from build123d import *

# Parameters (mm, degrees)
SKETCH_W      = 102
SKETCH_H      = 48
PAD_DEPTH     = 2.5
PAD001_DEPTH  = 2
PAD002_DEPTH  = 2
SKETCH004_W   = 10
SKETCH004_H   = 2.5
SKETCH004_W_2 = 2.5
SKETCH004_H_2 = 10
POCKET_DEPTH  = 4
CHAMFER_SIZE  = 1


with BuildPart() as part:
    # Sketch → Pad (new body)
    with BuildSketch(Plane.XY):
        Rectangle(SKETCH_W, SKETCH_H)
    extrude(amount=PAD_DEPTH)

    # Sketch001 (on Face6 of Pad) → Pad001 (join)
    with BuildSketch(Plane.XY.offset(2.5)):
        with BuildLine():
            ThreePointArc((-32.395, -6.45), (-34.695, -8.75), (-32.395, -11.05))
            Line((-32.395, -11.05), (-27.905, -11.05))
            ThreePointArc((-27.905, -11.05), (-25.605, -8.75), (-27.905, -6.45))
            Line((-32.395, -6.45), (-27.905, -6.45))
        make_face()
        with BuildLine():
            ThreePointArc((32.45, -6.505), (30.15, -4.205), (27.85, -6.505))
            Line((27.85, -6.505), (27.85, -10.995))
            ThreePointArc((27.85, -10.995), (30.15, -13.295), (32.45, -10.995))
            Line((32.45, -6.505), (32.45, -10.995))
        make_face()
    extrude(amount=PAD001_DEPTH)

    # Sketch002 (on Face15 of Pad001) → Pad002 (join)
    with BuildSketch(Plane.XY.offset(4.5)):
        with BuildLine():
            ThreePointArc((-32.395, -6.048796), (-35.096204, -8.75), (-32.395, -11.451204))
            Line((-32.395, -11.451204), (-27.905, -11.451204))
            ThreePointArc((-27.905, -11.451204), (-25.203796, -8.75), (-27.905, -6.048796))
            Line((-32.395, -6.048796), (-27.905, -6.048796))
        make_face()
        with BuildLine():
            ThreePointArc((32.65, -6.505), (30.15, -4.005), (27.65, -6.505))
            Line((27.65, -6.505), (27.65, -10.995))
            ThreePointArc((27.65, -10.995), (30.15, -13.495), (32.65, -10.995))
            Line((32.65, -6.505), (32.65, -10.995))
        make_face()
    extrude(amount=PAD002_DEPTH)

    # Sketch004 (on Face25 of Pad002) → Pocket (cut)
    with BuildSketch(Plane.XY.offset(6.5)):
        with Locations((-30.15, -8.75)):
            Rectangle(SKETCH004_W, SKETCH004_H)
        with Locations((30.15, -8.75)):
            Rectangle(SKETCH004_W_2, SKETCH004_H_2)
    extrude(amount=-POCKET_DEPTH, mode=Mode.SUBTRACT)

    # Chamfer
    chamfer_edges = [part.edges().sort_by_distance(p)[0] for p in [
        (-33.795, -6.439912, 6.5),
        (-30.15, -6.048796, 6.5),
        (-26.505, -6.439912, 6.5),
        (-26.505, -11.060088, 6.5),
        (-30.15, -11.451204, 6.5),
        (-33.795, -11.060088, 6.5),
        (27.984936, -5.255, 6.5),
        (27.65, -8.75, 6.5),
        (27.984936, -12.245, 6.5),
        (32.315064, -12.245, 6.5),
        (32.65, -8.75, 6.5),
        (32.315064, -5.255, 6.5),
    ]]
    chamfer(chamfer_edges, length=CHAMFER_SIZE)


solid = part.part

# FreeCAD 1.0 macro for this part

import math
import FreeCAD as App
import Part
import Sketcher
Q = App.Units.Quantity


def edges_at(feature, points):
    """Names of the edges that pass closest to the given points."""
    edges = feature.Shape.Edges
    near = lambda p: min(range(len(edges)), key=lambda i: edges[i].distToShape(Part.Vertex(*p))[0])
    return sorted({f"Edge{near(p) + 1}" for p in points})

doc = App.newDocument("Part")
body = doc.addObject("PartDesign::Body", "Body")

sketch1 = body.newObject("Sketcher::SketchObject", "Sketch")
sketch1.AttachmentSupport = (doc.getObject("XY_Plane"), [""])
sketch1.MapMode = "FlatFace"
sketch1.addGeometry(Part.LineSegment(App.Vector(-51, 24, 0), App.Vector(-51, -24, 0)), False)
sketch1.addGeometry(Part.LineSegment(App.Vector(-51, -24, 0), App.Vector(51, -24, 0)), False)
sketch1.addGeometry(Part.LineSegment(App.Vector(51, -24, 0), App.Vector(51, 24, 0)), False)
sketch1.addGeometry(Part.LineSegment(App.Vector(51, 24, 0), App.Vector(-51, 24, 0)), False)
sketch1.addConstraint(Sketcher.Constraint("Coincident", 0, 2, 1, 1))
sketch1.addConstraint(Sketcher.Constraint("Coincident", 1, 2, 2, 1))
sketch1.addConstraint(Sketcher.Constraint("Coincident", 2, 2, 3, 1))
sketch1.addConstraint(Sketcher.Constraint("Coincident", 3, 2, 0, 1))
sketch1.addConstraint(Sketcher.Constraint("Vertical", 0))
sketch1.addConstraint(Sketcher.Constraint("Horizontal", 1))
sketch1.addConstraint(Sketcher.Constraint("Vertical", 2))
sketch1.addConstraint(Sketcher.Constraint("Horizontal", 3))
sketch1.addConstraint(Sketcher.Constraint("Symmetric", 0, 2, 2, 2, -1, 1))
sketch1.addConstraint(Sketcher.Constraint("DistanceX", 1, 1, 1, 2, Q("102 mm")))
sketch1.addConstraint(Sketcher.Constraint("DistanceY", 0, 2, 0, 1, Q("48 mm")))
pad1 = body.newObject("PartDesign::Pad", "Pad")
pad1.Profile = sketch1
pad1.Length = 2.5

sketch2 = body.newObject("Sketcher::SketchObject", "Sketch001")
sketch2.AttachmentSupport = (doc.getObject("XY_Plane"), [""])
sketch2.MapMode = "FlatFace"
sketch2.AttachmentOffset = App.Placement(App.Vector(0, 0, 2.5), App.Rotation())
sketch2.addGeometry(Part.ArcOfCircle(Part.Circle(App.Vector(-32.4, -8.8, 0), App.Vector(0, 0, 1), 2.3), math.radians(90), math.radians(270)), False)
sketch2.addGeometry(Part.LineSegment(App.Vector(-32.4, -11.1, 0), App.Vector(-27.9, -11.1, 0)), False)
sketch2.addGeometry(Part.ArcOfCircle(Part.Circle(App.Vector(-27.9, -8.8, 0), App.Vector(0, 0, 1), 2.3), math.radians(-90), math.radians(90)), False)
sketch2.addGeometry(Part.LineSegment(App.Vector(-27.9, -6.5, 0), App.Vector(-32.4, -6.5, 0)), False)
sketch2.addGeometry(Part.ArcOfCircle(Part.Circle(App.Vector(30.1, -6.5, 0), App.Vector(0, 0, 1), 2.3), math.radians(0), math.radians(180)), False)
sketch2.addGeometry(Part.LineSegment(App.Vector(27.9, -6.5, 0), App.Vector(27.9, -11, 0)), False)
sketch2.addGeometry(Part.ArcOfCircle(Part.Circle(App.Vector(30.1, -11, 0), App.Vector(0, 0, 1), 2.3), math.radians(180), math.radians(360)), False)
sketch2.addGeometry(Part.LineSegment(App.Vector(32.5, -11, 0), App.Vector(32.5, -6.5, 0)), False)
sketch2.addConstraint(Sketcher.Constraint("Tangent", 0, 2, 1, 1))
sketch2.addConstraint(Sketcher.Constraint("Tangent", 1, 2, 2, 1))
sketch2.addConstraint(Sketcher.Constraint("Tangent", 2, 2, 3, 1))
sketch2.addConstraint(Sketcher.Constraint("Tangent", 3, 2, 0, 1))
sketch2.addConstraint(Sketcher.Constraint("Tangent", 4, 2, 5, 1))
sketch2.addConstraint(Sketcher.Constraint("Tangent", 5, 2, 6, 1))
sketch2.addConstraint(Sketcher.Constraint("Tangent", 6, 2, 7, 1))
sketch2.addConstraint(Sketcher.Constraint("Tangent", 7, 2, 4, 1))
sketch2.addConstraint(Sketcher.Constraint("Horizontal", 1))
sketch2.addConstraint(Sketcher.Constraint("Horizontal", 3))
sketch2.addConstraint(Sketcher.Constraint("Vertical", 5))
sketch2.addConstraint(Sketcher.Constraint("Vertical", 7))
sketch2.addConstraint(Sketcher.Constraint("Equal", 2, 4))
sketch2.addConstraint(Sketcher.Constraint("Equal", 3, 5))
sketch2.addConstraint(Sketcher.Constraint("Radius", 0, Q("2.3 mm")))
sketch2.addConstraint(Sketcher.Constraint("DistanceX", 1, 1, 1, 2, Q("4.49 mm")))
sketch2.addConstraint(Sketcher.Constraint("DistanceY", 0, 3, -1, 1, Q("8.75 mm")))
sketch2.addConstraint(Sketcher.Constraint("DistanceX", -1, 1, 4, 3, Q("30.15 mm")))
sketch2.addConstraint(Sketcher.Constraint("DistanceX", 0, 3, -1, 1, Q("32.395 mm")))
sketch2.addConstraint(Sketcher.Constraint("DistanceY", 4, 3, -1, 1, Q("6.505 mm")))
pad2 = body.newObject("PartDesign::Pad", "Pad001")
pad2.Profile = sketch2
pad2.Length = 2

sketch3 = body.newObject("Sketcher::SketchObject", "Sketch002")
sketch3.AttachmentSupport = (doc.getObject("XY_Plane"), [""])
sketch3.MapMode = "FlatFace"
sketch3.AttachmentOffset = App.Placement(App.Vector(0, 0, 4.5), App.Rotation())
sketch3.addGeometry(Part.ArcOfCircle(Part.Circle(App.Vector(-32.4, -8.8, 0), App.Vector(0, 0, 1), 2.7), math.radians(90), math.radians(270)), False)
sketch3.addGeometry(Part.LineSegment(App.Vector(-32.4, -11.5, 0), App.Vector(-27.9, -11.5, 0)), False)
sketch3.addGeometry(Part.ArcOfCircle(Part.Circle(App.Vector(-27.9, -8.8, 0), App.Vector(0, 0, 1), 2.7), math.radians(-90), math.radians(90)), False)
sketch3.addGeometry(Part.LineSegment(App.Vector(-27.9, -6, 0), App.Vector(-32.4, -6, 0)), False)
sketch3.addGeometry(Part.ArcOfCircle(Part.Circle(App.Vector(30.1, -6.5, 0), App.Vector(0, 0, 1), 2.5), math.radians(0), math.radians(180)), False)
sketch3.addGeometry(Part.LineSegment(App.Vector(27.6, -6.5, 0), App.Vector(27.6, -11, 0)), False)
sketch3.addGeometry(Part.ArcOfCircle(Part.Circle(App.Vector(30.1, -11, 0), App.Vector(0, 0, 1), 2.5), math.radians(180), math.radians(360)), False)
sketch3.addGeometry(Part.LineSegment(App.Vector(32.6, -11, 0), App.Vector(32.6, -6.5, 0)), False)
sketch3.addConstraint(Sketcher.Constraint("Tangent", 0, 2, 1, 1))
sketch3.addConstraint(Sketcher.Constraint("Tangent", 1, 2, 2, 1))
sketch3.addConstraint(Sketcher.Constraint("Tangent", 2, 2, 3, 1))
sketch3.addConstraint(Sketcher.Constraint("Tangent", 3, 2, 0, 1))
sketch3.addConstraint(Sketcher.Constraint("Tangent", 4, 2, 5, 1))
sketch3.addConstraint(Sketcher.Constraint("Tangent", 5, 2, 6, 1))
sketch3.addConstraint(Sketcher.Constraint("Tangent", 6, 2, 7, 1))
sketch3.addConstraint(Sketcher.Constraint("Tangent", 7, 2, 4, 1))
sketch3.addConstraint(Sketcher.Constraint("Horizontal", 1))
sketch3.addConstraint(Sketcher.Constraint("Horizontal", 3))
sketch3.addConstraint(Sketcher.Constraint("Vertical", 5))
sketch3.addConstraint(Sketcher.Constraint("Vertical", 7))
sketch3.addConstraint(Sketcher.Constraint("Equal", 3, 5))
sketch3.addConstraint(Sketcher.Constraint("Radius", 4, Q("2.5 mm")))
sketch3.addConstraint(Sketcher.Constraint("DistanceX", 1, 1, 1, 2, Q("4.49 mm")))
sketch3.addConstraint(Sketcher.Constraint("DistanceY", 0, 3, -1, 1, Q("8.75 mm")))
sketch3.addConstraint(Sketcher.Constraint("DistanceX", -1, 1, 4, 3, Q("30.15 mm")))
sketch3.addConstraint(Sketcher.Constraint("DistanceX", 0, 3, -1, 1, Q("32.395 mm")))
sketch3.addConstraint(Sketcher.Constraint("DistanceY", 4, 3, -1, 1, Q("6.505 mm")))
sketch3.addConstraint(Sketcher.Constraint("Radius", 0, Q("2.701204 mm")))
pad3 = body.newObject("PartDesign::Pad", "Pad002")
pad3.Profile = sketch3
pad3.Length = 2

sketch4 = body.newObject("Sketcher::SketchObject", "Sketch003")
sketch4.AttachmentSupport = (doc.getObject("XY_Plane"), [""])
sketch4.MapMode = "FlatFace"
sketch4.AttachmentOffset = App.Placement(App.Vector(0, 0, 6.5), App.Rotation())
sketch4.addGeometry(Part.LineSegment(App.Vector(-35.1, -7.5, 0), App.Vector(-35.1, -10, 0)), False)
sketch4.addGeometry(Part.LineSegment(App.Vector(-35.1, -10, 0), App.Vector(-25.1, -10, 0)), False)
sketch4.addGeometry(Part.LineSegment(App.Vector(-25.1, -10, 0), App.Vector(-25.1, -7.5, 0)), False)
sketch4.addGeometry(Part.LineSegment(App.Vector(-25.1, -7.5, 0), App.Vector(-35.1, -7.5, 0)), False)
sketch4.addGeometry(Part.LineSegment(App.Vector(28.9, -3.8, 0), App.Vector(28.9, -13.8, 0)), False)
sketch4.addGeometry(Part.LineSegment(App.Vector(28.9, -13.8, 0), App.Vector(31.4, -13.8, 0)), False)
sketch4.addGeometry(Part.LineSegment(App.Vector(31.4, -13.8, 0), App.Vector(31.4, -3.8, 0)), False)
sketch4.addGeometry(Part.LineSegment(App.Vector(31.4, -3.8, 0), App.Vector(28.9, -3.8, 0)), False)
sketch4.addConstraint(Sketcher.Constraint("Coincident", 0, 2, 1, 1))
sketch4.addConstraint(Sketcher.Constraint("Coincident", 1, 2, 2, 1))
sketch4.addConstraint(Sketcher.Constraint("Coincident", 2, 2, 3, 1))
sketch4.addConstraint(Sketcher.Constraint("Coincident", 3, 2, 0, 1))
sketch4.addConstraint(Sketcher.Constraint("Coincident", 4, 2, 5, 1))
sketch4.addConstraint(Sketcher.Constraint("Coincident", 5, 2, 6, 1))
sketch4.addConstraint(Sketcher.Constraint("Coincident", 6, 2, 7, 1))
sketch4.addConstraint(Sketcher.Constraint("Coincident", 7, 2, 4, 1))
sketch4.addConstraint(Sketcher.Constraint("Vertical", 0))
sketch4.addConstraint(Sketcher.Constraint("Horizontal", 1))
sketch4.addConstraint(Sketcher.Constraint("Vertical", 2))
sketch4.addConstraint(Sketcher.Constraint("Horizontal", 3))
sketch4.addConstraint(Sketcher.Constraint("Vertical", 4))
sketch4.addConstraint(Sketcher.Constraint("Horizontal", 5))
sketch4.addConstraint(Sketcher.Constraint("Vertical", 6))
sketch4.addConstraint(Sketcher.Constraint("Horizontal", 7))
sketch4.addConstraint(Sketcher.Constraint("Equal", 7, 0))
sketch4.addConstraint(Sketcher.Constraint("Equal", 3, 4))
sketch4.addConstraint(Sketcher.Constraint("DistanceX", 1, 1, 1, 2, Q("10 mm")))
sketch4.addConstraint(Sketcher.Constraint("DistanceX", 5, 1, 5, 2, Q("2.5 mm")))
sketch4.addConstraint(Sketcher.Constraint("DistanceY", 0, 2, -1, 1, Q("10 mm")))
sketch4.addConstraint(Sketcher.Constraint("DistanceX", -1, 1, 4, 2, Q("28.9 mm")))
sketch4.addConstraint(Sketcher.Constraint("DistanceX", 0, 2, -1, 1, Q("35.15 mm")))
sketch4.addConstraint(Sketcher.Constraint("DistanceY", 4, 2, -1, 1, Q("13.75 mm")))
pocket1 = body.newObject("PartDesign::Pocket", "Pocket")
pocket1.Profile = sketch4
pocket1.Length = 4
doc.recompute()

chamfer = body.newObject("PartDesign::Chamfer", "Chamfer")
chamfer.Base = (pocket1, edges_at(pocket1, [
    (-33.795, -6.44, 6.5),
    (-30.15, -6.049, 6.5),
    (-26.505, -6.44, 6.5),
    (-26.505, -11.06, 6.5),
    (-30.15, -11.451, 6.5),
    (-33.795, -11.06, 6.5),
    (27.985, -5.255, 6.5),
    (27.65, -8.75, 6.5),
    (27.985, -12.245, 6.5),
    (32.315, -12.245, 6.5),
    (32.65, -8.75, 6.5),
    (32.315, -5.255, 6.5),
]))
chamfer.Size = 1

doc.recompute()
